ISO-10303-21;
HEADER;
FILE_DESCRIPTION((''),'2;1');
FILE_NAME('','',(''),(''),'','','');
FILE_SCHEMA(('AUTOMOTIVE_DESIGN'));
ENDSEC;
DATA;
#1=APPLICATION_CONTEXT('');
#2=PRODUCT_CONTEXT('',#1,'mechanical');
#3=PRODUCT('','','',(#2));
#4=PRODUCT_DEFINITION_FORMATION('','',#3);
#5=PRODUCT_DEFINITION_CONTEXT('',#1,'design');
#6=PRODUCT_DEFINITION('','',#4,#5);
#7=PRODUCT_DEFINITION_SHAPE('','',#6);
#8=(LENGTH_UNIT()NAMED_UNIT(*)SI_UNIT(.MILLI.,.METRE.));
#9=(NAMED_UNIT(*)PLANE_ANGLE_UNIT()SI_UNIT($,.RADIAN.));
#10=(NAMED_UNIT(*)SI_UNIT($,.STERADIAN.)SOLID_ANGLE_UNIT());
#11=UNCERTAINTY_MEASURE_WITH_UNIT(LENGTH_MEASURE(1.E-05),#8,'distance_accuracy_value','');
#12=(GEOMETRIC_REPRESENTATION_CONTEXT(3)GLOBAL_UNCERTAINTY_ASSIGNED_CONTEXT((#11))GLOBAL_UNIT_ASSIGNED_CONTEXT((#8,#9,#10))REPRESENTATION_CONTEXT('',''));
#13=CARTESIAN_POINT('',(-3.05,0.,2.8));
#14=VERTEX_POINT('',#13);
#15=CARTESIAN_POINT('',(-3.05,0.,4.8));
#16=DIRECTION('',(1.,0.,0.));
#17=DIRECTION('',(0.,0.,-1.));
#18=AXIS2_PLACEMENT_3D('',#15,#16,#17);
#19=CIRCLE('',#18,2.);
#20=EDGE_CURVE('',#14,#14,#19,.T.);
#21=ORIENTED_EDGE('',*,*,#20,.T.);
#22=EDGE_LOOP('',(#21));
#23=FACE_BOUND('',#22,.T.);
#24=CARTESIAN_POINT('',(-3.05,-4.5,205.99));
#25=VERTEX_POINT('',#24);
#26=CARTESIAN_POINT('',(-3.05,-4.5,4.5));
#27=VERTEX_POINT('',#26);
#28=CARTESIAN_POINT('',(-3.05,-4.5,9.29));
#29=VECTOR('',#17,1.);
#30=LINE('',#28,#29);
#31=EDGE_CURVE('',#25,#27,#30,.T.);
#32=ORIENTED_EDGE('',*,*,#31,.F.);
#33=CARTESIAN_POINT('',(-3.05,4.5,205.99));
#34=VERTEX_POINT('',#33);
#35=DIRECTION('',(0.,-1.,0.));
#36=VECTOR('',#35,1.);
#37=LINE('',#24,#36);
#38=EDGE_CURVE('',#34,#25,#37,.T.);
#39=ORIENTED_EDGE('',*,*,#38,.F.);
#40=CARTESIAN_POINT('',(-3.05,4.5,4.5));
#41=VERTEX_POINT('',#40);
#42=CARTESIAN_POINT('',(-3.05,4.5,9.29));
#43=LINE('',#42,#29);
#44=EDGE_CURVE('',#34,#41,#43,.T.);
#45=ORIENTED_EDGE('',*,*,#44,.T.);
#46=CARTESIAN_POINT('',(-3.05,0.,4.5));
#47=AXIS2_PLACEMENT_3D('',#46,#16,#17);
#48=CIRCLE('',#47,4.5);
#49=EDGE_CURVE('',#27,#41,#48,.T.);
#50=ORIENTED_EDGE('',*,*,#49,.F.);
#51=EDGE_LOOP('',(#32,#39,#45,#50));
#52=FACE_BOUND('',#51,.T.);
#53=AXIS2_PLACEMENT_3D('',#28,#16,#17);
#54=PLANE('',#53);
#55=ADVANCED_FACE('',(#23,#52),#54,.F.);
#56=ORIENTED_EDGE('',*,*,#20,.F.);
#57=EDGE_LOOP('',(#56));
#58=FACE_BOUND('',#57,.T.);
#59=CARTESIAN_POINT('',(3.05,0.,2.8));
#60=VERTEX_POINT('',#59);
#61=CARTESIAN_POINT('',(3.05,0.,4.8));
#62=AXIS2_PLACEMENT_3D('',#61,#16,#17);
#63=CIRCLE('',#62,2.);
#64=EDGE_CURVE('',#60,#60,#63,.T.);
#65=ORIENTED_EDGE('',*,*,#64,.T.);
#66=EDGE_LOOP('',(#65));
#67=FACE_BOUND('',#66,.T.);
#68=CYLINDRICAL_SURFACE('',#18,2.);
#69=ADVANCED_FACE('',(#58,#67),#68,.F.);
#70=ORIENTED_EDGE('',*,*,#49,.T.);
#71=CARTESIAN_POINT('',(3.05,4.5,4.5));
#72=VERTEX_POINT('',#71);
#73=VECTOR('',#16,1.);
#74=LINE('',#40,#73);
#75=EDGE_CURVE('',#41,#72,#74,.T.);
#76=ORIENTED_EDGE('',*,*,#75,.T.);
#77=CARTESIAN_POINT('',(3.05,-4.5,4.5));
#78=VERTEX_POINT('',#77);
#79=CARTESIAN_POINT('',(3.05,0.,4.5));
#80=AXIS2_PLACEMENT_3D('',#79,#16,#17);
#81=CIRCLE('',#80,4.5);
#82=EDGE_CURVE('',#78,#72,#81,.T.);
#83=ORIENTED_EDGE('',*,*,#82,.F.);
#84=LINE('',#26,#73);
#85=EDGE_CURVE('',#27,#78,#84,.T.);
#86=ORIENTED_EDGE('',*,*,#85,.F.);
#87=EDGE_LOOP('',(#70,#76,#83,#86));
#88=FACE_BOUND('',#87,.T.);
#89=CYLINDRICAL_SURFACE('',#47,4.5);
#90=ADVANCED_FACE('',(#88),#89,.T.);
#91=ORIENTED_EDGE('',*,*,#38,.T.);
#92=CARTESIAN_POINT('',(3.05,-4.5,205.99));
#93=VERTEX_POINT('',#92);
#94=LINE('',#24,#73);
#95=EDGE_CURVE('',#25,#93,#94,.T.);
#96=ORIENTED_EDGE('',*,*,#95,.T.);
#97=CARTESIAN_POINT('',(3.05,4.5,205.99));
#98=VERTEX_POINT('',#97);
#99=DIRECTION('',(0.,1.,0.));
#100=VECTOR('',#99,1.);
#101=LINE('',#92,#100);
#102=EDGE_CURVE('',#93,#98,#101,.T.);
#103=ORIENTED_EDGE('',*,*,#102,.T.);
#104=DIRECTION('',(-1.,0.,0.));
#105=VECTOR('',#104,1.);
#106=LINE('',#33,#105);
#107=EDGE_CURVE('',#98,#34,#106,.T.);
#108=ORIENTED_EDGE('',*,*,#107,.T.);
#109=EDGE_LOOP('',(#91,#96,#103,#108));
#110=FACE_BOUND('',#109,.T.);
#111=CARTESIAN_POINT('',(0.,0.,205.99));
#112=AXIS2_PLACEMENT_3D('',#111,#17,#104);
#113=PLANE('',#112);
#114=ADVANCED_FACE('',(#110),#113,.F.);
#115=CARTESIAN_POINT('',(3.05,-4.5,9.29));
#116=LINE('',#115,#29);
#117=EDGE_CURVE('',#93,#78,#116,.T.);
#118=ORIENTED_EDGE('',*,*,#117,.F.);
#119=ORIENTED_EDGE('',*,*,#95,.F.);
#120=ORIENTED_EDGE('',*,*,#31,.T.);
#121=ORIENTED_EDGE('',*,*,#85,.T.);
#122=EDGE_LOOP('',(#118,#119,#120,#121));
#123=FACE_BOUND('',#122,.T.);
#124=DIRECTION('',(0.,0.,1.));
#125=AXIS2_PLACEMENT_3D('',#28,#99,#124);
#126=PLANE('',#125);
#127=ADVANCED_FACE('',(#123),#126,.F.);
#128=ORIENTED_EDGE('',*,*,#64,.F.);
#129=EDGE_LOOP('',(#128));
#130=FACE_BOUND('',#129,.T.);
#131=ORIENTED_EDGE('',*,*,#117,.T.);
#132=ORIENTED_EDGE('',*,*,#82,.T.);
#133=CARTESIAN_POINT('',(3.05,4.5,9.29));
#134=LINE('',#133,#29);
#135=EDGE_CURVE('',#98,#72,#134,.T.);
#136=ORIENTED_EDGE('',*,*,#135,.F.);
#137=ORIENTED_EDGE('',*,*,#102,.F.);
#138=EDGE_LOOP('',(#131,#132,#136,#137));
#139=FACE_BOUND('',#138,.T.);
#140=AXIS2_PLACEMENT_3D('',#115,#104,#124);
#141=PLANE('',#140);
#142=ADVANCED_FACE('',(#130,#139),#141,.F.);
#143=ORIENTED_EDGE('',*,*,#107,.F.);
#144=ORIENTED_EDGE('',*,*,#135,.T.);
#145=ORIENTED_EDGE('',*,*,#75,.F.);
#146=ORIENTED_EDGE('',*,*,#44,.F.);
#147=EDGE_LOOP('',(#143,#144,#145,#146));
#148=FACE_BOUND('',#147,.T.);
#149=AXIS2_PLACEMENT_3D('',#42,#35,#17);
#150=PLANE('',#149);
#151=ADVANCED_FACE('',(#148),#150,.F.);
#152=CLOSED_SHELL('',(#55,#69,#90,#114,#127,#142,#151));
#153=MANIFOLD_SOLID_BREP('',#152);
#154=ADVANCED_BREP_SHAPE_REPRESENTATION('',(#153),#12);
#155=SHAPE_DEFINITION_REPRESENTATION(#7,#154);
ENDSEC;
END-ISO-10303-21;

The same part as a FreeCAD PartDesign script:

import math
import FreeCAD as App
import Part
import Sketcher
from FreeCAD import Vector

doc = App.newDocument("Part")
params = doc.addObject("Spreadsheet::Sheet", "Params")
for row, (alias, value) in enumerate([
    ("sketch1_height", "9 mm"),
    ("sketch1_width", "6.1 mm"),
    ("pad1_length", "9.29 mm"),
    ("sketch2_diameter", "4 mm"),
    ("sketch2_radius", "4.5 mm"),
    ("sketch3_height", "9 mm"),
    ("sketch3_width", "6.1 mm"),
    ("pad2_length", "196.7 mm"),
], start=1):
    params.set(f"A{row}", alias)
    params.set(f"B{row}", "=" + value)
    params.setAlias(f"B{row}", alias)

body = doc.addObject("PartDesign::Body", "Body")

sketch1 = doc.addObject("Sketcher::SketchObject", "Sketch")
body.addObject(sketch1)
sketch1.AttachmentSupport = (doc.XY_Plane, [""])
sketch1.MapMode = "FlatFace"
sketch1.addGeometry([
    Part.LineSegment(Vector(-3, 4, 0), Vector(-3, -4, 0)),
    Part.LineSegment(Vector(-3, -4, 0), Vector(3, -4, 0)),
    Part.LineSegment(Vector(3, -4, 0), Vector(3, 4, 0)),
    Part.LineSegment(Vector(3, 4, 0), Vector(-3, 4, 0)),
], False)
sketch1.addConstraint([
    Sketcher.Constraint("Coincident", 0, 2, 1, 1),
    Sketcher.Constraint("Coincident", 1, 2, 2, 1),
    Sketcher.Constraint("Coincident", 2, 2, 3, 1),
    Sketcher.Constraint("Coincident", 3, 2, 0, 1),
    Sketcher.Constraint("Vertical", 0),
    Sketcher.Constraint("Horizontal", 1),
    Sketcher.Constraint("Vertical", 2),
    Sketcher.Constraint("Horizontal", 3),
    Sketcher.Constraint("Symmetric", 0, 2, 2, 2, -1, 1),
    Sketcher.Constraint("DistanceY", 0, 2, 0, 1, 9.0),
    Sketcher.Constraint("DistanceX", 1, 1, 1, 2, 6.1),
])
sketch1.setExpression("Constraints[9]", "Params.sketch1_height")
sketch1.setExpression("Constraints[10]", "Params.sketch1_width")
pad1 = doc.addObject("PartDesign::Pad", "Pad")
body.addObject(pad1)
pad1.Profile = sketch1
pad1.setExpression("Length", "Params.pad1_length")

sketch2 = doc.addObject("Sketcher::SketchObject", "Sketch001")
body.addObject(sketch2)
sketch2.AttachmentSupport = (doc.YZ_Plane, [""])
sketch2.MapMode = "FlatFace"
sketch2.AttachmentOffset = App.Placement(Vector(0, 0, 3.05), App.Rotation())
sketch2.addGeometry([
    Part.ArcOfCircle(Part.Circle(Vector(0, 4.5, 0), Vector(0, 0, 1), 4.5), math.radians(-90), math.radians(0)),
    Part.LineSegment(Vector(0, 0, 0), Vector(4.5, 0, 0)),
    Part.LineSegment(Vector(4.5, 0, 0), Vector(4.5, 4.5, 0)),
    Part.ArcOfCircle(Part.Circle(Vector(0, 4.5, 0), Vector(0, 0, 1), 4.5), math.radians(-180), math.radians(-90)),
    Part.LineSegment(Vector(-4.5, 4.5, 0), Vector(-4.5, 0, 0)),
    Part.LineSegment(Vector(-4.5, 0, 0), Vector(0, 0, 0)),
    Part.Circle(Vector(0, 4.8, 0), Vector(0, 0, 1), 2),
], False)
sketch2.addConstraint([
    Sketcher.Constraint("Tangent", 0, 1, 1, 1),
    Sketcher.Constraint("Coincident", 1, 2, 2, 1),
    Sketcher.Constraint("Tangent", 2, 2, 0, 2),
    Sketcher.Constraint("Tangent", 3, 1, 4, 1),
    Sketcher.Constraint("Coincident", 4, 2, 5, 1),
    Sketcher.Constraint("Tangent", 5, 2, 3, 2),
    Sketcher.Constraint("Horizontal", 1),
    Sketcher.Constraint("Vertical", 2),
    Sketcher.Constraint("Vertical", 4),
    Sketcher.Constraint("Horizontal", 5),
    Sketcher.Constraint("Coincident", 0, 1, -1, 1),
    Sketcher.Constraint("Coincident", 5, 2, -1, 1),
    Sketcher.Constraint("Equal", 0, 3),
    Sketcher.Constraint("PointOnObject", 6, 3, -2),
    Sketcher.Constraint("Diameter", 6, 4.0),
    Sketcher.Constraint("Radius", 0, 4.5),
    Sketcher.Constraint("DistanceY", -1, 1, 6, 3, 4.8),
])
sketch2.setExpression("Constraints[14]", "Params.sketch2_diameter")
sketch2.setExpression("Constraints[15]", "Params.sketch2_radius")
pocket1 = doc.addObject("PartDesign::Pocket", "Pocket")
body.addObject(pocket1)
pocket1.Profile = sketch2
pocket1.Type = "ThroughAll"

sketch3 = doc.addObject("Sketcher::SketchObject", "Sketch002")
body.addObject(sketch3)
sketch3.AttachmentSupport = (doc.XY_Plane, [""])
sketch3.MapMode = "FlatFace"
sketch3.AttachmentOffset = App.Placement(Vector(0, 0, 9.29), App.Rotation())
sketch3.addGeometry([
    Part.LineSegment(Vector(-3, 4, 0), Vector(-3, -4, 0)),
    Part.LineSegment(Vector(-3, -4, 0), Vector(3, -4, 0)),
    Part.LineSegment(Vector(3, -4, 0), Vector(3, 4, 0)),
    Part.LineSegment(Vector(3, 4, 0), Vector(-3, 4, 0)),
], False)
sketch3.addConstraint([
    Sketcher.Constraint("Coincident", 0, 2, 1, 1),
    Sketcher.Constraint("Coincident", 1, 2, 2, 1),
    Sketcher.Constraint("Coincident", 2, 2, 3, 1),
    Sketcher.Constraint("Coincident", 3, 2, 0, 1),
    Sketcher.Constraint("Vertical", 0),
    Sketcher.Constraint("Horizontal", 1),
    Sketcher.Constraint("Vertical", 2),
    Sketcher.Constraint("Horizontal", 3),
    Sketcher.Constraint("Symmetric", 0, 2, 2, 2, -1, 1),
    Sketcher.Constraint("DistanceY", 0, 2, 0, 1, 9.0),
    Sketcher.Constraint("DistanceX", 1, 1, 1, 2, 6.1),
])
sketch3.setExpression("Constraints[9]", "Params.sketch3_height")
sketch3.setExpression("Constraints[10]", "Params.sketch3_width")
pad2 = doc.addObject("PartDesign::Pad", "Pad001")
body.addObject(pad2)
pad2.Profile = sketch3
pad2.setExpression("Length", "Params.pad2_length")

doc.recompute()
